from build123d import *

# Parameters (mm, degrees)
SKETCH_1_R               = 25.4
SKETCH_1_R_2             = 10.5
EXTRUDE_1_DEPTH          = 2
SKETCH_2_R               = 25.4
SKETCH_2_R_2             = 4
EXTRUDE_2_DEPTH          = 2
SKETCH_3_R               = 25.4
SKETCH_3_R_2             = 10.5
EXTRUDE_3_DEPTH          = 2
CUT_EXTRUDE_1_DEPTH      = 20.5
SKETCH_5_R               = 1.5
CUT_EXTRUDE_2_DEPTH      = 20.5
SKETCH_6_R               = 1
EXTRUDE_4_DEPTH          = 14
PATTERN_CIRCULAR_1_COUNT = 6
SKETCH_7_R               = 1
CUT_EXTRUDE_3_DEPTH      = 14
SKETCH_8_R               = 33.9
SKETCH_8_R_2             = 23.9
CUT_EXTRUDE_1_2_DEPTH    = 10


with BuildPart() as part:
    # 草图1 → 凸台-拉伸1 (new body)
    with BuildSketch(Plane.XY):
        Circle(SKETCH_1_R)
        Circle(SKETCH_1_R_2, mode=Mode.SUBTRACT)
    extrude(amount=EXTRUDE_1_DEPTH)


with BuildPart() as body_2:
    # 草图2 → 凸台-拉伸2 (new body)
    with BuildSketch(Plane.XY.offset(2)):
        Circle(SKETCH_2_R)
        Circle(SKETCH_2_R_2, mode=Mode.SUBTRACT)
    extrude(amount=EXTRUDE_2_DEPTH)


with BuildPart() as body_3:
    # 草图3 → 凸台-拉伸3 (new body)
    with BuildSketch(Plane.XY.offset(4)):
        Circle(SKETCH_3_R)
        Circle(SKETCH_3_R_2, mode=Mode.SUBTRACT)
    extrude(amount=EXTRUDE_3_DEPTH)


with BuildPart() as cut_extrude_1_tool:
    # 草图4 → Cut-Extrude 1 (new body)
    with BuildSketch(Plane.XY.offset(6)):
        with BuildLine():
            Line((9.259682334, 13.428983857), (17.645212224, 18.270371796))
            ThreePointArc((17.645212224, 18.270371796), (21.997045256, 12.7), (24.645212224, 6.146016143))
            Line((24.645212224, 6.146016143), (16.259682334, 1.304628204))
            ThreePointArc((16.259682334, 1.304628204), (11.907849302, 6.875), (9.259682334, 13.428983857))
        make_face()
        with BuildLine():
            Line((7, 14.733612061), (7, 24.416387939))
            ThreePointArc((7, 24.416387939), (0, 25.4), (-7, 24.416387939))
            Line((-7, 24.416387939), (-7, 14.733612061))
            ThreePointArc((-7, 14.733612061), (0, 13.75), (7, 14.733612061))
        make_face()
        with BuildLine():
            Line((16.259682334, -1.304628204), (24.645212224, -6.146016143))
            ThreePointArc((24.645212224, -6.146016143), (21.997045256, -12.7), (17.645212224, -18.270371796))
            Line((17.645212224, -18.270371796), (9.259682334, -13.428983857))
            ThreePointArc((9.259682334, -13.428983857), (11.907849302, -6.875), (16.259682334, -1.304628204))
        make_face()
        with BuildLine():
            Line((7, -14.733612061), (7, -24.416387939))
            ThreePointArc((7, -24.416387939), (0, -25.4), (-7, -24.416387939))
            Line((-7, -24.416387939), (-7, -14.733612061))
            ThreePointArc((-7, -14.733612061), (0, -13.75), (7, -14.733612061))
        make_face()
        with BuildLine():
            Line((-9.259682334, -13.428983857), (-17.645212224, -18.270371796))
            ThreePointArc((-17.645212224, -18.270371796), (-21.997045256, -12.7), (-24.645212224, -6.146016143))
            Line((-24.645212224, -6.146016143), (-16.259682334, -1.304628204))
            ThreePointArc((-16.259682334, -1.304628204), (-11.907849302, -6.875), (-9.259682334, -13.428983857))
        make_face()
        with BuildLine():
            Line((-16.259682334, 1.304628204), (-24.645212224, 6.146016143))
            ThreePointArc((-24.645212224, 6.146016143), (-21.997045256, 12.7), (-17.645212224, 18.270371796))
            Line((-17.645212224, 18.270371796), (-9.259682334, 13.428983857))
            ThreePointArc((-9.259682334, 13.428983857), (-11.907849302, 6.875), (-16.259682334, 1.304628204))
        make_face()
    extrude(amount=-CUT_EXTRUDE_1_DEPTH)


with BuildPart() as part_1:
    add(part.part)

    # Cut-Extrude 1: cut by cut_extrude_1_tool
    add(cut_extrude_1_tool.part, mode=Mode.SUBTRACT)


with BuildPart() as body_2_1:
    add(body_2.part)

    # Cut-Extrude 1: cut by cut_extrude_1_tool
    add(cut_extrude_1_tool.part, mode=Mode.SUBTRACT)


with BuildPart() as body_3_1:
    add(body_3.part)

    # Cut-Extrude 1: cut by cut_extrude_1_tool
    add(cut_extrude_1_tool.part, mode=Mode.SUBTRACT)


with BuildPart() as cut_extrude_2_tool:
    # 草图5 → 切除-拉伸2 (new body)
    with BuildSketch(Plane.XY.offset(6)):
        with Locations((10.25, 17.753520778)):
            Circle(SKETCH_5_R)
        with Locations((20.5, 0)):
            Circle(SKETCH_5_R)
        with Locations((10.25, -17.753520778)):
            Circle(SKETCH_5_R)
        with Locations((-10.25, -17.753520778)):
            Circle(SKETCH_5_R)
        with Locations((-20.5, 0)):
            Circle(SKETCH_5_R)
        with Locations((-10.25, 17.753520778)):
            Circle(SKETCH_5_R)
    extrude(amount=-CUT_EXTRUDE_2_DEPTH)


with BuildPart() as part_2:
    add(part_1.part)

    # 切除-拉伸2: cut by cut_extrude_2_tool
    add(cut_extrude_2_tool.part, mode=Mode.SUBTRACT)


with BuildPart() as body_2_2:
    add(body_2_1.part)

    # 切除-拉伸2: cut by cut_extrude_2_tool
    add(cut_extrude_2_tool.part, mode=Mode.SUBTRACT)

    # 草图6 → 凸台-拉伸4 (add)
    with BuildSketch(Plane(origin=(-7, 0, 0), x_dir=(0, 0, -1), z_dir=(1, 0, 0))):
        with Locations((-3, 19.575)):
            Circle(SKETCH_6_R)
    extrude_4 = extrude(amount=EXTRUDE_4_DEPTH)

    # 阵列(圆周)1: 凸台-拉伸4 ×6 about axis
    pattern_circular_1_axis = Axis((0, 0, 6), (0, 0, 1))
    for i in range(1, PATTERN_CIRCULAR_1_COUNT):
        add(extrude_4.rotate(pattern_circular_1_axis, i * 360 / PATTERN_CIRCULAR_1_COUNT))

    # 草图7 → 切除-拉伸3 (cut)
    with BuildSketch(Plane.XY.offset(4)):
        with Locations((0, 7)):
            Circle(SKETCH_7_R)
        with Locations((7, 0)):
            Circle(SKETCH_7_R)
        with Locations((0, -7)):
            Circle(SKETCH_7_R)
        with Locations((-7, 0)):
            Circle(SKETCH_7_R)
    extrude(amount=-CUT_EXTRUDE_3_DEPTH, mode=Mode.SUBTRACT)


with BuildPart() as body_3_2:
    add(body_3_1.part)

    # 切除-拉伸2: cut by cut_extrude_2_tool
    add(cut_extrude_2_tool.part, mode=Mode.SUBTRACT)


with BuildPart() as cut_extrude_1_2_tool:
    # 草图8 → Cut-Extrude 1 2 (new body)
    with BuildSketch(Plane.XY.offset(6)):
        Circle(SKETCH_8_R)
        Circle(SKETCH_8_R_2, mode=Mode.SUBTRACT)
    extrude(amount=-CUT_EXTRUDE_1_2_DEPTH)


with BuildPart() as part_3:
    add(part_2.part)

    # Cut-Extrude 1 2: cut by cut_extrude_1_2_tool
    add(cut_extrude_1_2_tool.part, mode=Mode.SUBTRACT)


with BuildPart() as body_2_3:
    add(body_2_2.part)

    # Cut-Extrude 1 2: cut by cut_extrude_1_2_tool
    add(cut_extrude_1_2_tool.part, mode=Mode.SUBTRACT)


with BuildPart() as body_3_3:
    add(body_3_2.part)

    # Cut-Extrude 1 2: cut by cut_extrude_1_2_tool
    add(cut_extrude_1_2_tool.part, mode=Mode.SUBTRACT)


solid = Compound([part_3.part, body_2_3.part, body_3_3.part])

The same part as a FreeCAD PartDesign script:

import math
import FreeCAD as App
import Part
import Sketcher

V = App.Vector
Q = App.Units.Quantity

doc = App.newDocument("Part")
body = doc.addObject("PartDesign::Body", "Body")

# Sketch on XY plane
sketch1 = body.newObject("Sketcher::SketchObject", "Sketch")
sketch1.AttachmentSupport = (doc.getObject("XY_Plane"), [""])
sketch1.MapMode = "FlatFace"
sketch1.addGeometry(Part.Circle(V(0, 0, 0), V(0, 0, 1), 25), False)
sketch1.addGeometry(Part.Circle(V(0, 0, 0), V(0, 0, 1), 10), False)
sketch1.addConstraint(Sketcher.Constraint("Coincident", 0, 3, -1, 1))
sketch1.addConstraint(Sketcher.Constraint("Coincident", 1, 3, -1, 1))
sketch1.addConstraint(Sketcher.Constraint("Diameter", 1, Q("21 mm")))
sketch1.addConstraint(Sketcher.Constraint("Diameter", 0, Q("50.8 mm")))
pad1 = body.newObject("PartDesign::Pad", "Pad")
pad1.Profile = sketch1
pad1.Length = 2
body2 = doc.addObject("PartDesign::Body", "Body001")

# Sketch on XY plane
sketch2 = body2.newObject("Sketcher::SketchObject", "Sketch001")
sketch2.AttachmentSupport = (doc.getObject("XY_Plane001"), [""])
sketch2.MapMode = "FlatFace"
sketch2.AttachmentOffset = App.Placement(V(0, 0, 2), App.Rotation())
sketch2.addGeometry(Part.Circle(V(0, 0, 0), V(0, 0, 1), 25.4), False)
sketch2.addGeometry(Part.Circle(V(0, 0, 0), V(0, 0, 1), 4), False)
sketch2.addConstraint(Sketcher.Constraint("Coincident", 0, 3, -1, 1))
sketch2.addConstraint(Sketcher.Constraint("Coincident", 1, 3, -1, 1))
sketch2.addConstraint(Sketcher.Constraint("Diameter", 1, Q("8 mm")))
sketch2.addConstraint(Sketcher.Constraint("Diameter", 0, Q("50.8 mm")))
pad2 = body2.newObject("PartDesign::Pad", "Pad001")
pad2.Profile = sketch2
pad2.Length = 2
body3 = doc.addObject("PartDesign::Body", "Body002")

# Sketch on XY plane
sketch3 = body3.newObject("Sketcher::SketchObject", "Sketch002")
sketch3.AttachmentSupport = (doc.getObject("XY_Plane002"), [""])
sketch3.MapMode = "FlatFace"
sketch3.AttachmentOffset = App.Placement(V(0, 0, 4), App.Rotation())
sketch3.addGeometry(Part.Circle(V(0, 0, 0), V(0, 0, 1), 25), False)
sketch3.addGeometry(Part.Circle(V(0, 0, 0), V(0, 0, 1), 10), False)
sketch3.addConstraint(Sketcher.Constraint("Coincident", 0, 3, -1, 1))
sketch3.addConstraint(Sketcher.Constraint("Coincident", 1, 3, -1, 1))
sketch3.addConstraint(Sketcher.Constraint("Diameter", 1, Q("21 mm")))
sketch3.addConstraint(Sketcher.Constraint("Diameter", 0, Q("50.8 mm")))
pad3 = body3.newObject("PartDesign::Pad", "Pad002")
pad3.Profile = sketch3
pad3.Length = 2
body4 = doc.addObject("PartDesign::Body", "Body003")
body4.AllowCompound = True

# Sketch on XY plane
sketch4 = body4.newObject("Sketcher::SketchObject", "Sketch003")
sketch4.AttachmentSupport = (doc.getObject("XY_Plane003"), [""])
sketch4.MapMode = "FlatFace"
sketch4.AttachmentOffset = App.Placement(V(0, 0, 6), App.Rotation())
sketch4.addGeometry(Part.LineSegment(V(18, 18, 0), V(9, 13, 0)), False)
sketch4.addGeometry(Part.ArcOfCircle(Part.Circle(V(34, 20, 0), V(0, 0, 1), 25), math.radians(-166), math.radians(-134)), False)
sketch4.addGeometry(Part.LineSegment(V(16, 1, 0), V(25, 6, 0)), False)
sketch4.addGeometry(Part.ArcOfCircle(Part.Circle(V(0, 0, 0), V(0, 0, 1), 25), math.radians(14), math.radians(46)), False)
sketch4.addGeometry(Part.LineSegment(V(7, 15, 0), V(7, 24, 0)), False)
sketch4.addGeometry(Part.ArcOfCircle(Part.Circle(V(0, 0, 0), V(0, 0, 1), 25), math.radians(74), math.radians(106)), False)
sketch4.addGeometry(Part.LineSegment(V(-7, 24, 0), V(-7, 15, 0)), False)
sketch4.addGeometry(Part.ArcOfCircle(Part.Circle(V(0, 39, 0), V(0, 0, 1), 25), math.radians(-106), math.radians(-74)), False)
sketch4.addGeometry(Part.LineSegment(V(25, -6, 0), V(16, -1, 0)), False)
sketch4.addGeometry(Part.ArcOfCircle(Part.Circle(V(34, -20, 0), V(0, 0, 1), 25), math.radians(134), math.radians(166)), False)
sketch4.addGeometry(Part.LineSegment(V(9, -13, 0), V(18, -18, 0)), False)
sketch4.addGeometry(Part.ArcOfCircle(Part.Circle(V(0, 0, 0), V(0, 0, 1), 25), math.radians(-46), math.radians(-14)), False)
sketch4.addGeometry(Part.LineSegment(V(7, -24, 0), V(7, -15, 0)), False)
sketch4.addGeometry(Part.ArcOfCircle(Part.Circle(V(0, -39, 0), V(0, 0, 1), 25), math.radians(74), math.radians(106)), False)
sketch4.addGeometry(Part.LineSegment(V(-7, -15, 0), V(-7, -24, 0)), False)
sketch4.addGeometry(Part.ArcOfCircle(Part.Circle(V(0, 0, 0), V(0, 0, 1), 25), math.radians(-106), math.radians(-74)), False)
sketch4.addGeometry(Part.LineSegment(V(-18, -18, 0), V(-9, -13, 0)), False)
sketch4.addGeometry(Part.ArcOfCircle(Part.Circle(V(-34, -20, 0), V(0, 0, 1), 25), math.radians(14), math.radians(46)), False)
sketch4.addGeometry(Part.LineSegment(V(-16, -1, 0), V(-25, -6, 0)), False)
sketch4.addGeometry(Part.ArcOfCircle(Part.Circle(V(0, 0, 0), V(0, 0, 1), 25), math.radians(-166), math.radians(-134)), False)
sketch4.addGeometry(Part.LineSegment(V(-25, 6, 0), V(-16, 1, 0)), False)
sketch4.addGeometry(Part.ArcOfCircle(Part.Circle(V(-34, 20, 0), V(0, 0, 1), 25), math.radians(-46), math.radians(-14)), False)
sketch4.addGeometry(Part.LineSegment(V(-9, 13, 0), V(-18, 18, 0)), False)
sketch4.addGeometry(Part.ArcOfCircle(Part.Circle(V(0, 0, 0), V(0, 0, 1), 25), math.radians(134), math.radians(166)), False)
sketch4.addConstraint(Sketcher.Constraint("Coincident", 0, 2, 1, 1))
sketch4.addConstraint(Sketcher.Constraint("Coincident", 1, 2, 2, 1))
sketch4.addConstraint(Sketcher.Constraint("Coincident", 2, 2, 3, 1))
sketch4.addConstraint(Sketcher.Constraint("Coincident", 3, 2, 0, 1))
sketch4.addConstraint(Sketcher.Constraint("Coincident", 4, 2, 5, 1))
sketch4.addConstraint(Sketcher.Constraint("Coincident", 5, 2, 6, 1))
sketch4.addConstraint(Sketcher.Constraint("Coincident", 6, 2, 7, 1))
sketch4.addConstraint(Sketcher.Constraint("Coincident", 7, 2, 4, 1))
sketch4.addConstraint(Sketcher.Constraint("Coincident", 8, 2, 9, 1))
sketch4.addConstraint(Sketcher.Constraint("Coincident", 9, 2, 10, 1))
sketch4.addConstraint(Sketcher.Constraint("Coincident", 10, 2, 11, 1))
sketch4.addConstraint(Sketcher.Constraint("Coincident", 11, 2, 8, 1))
sketch4.addConstraint(Sketcher.Constraint("Coincident", 12, 2, 13, 1))
sketch4.addConstraint(Sketcher.Constraint("Coincident", 13, 2, 14, 1))
sketch4.addConstraint(Sketcher.Constraint("Coincident", 14, 2, 15, 1))
sketch4.addConstraint(Sketcher.Constraint("Coincident", 15, 2, 12, 1))
sketch4.addConstraint(Sketcher.Constraint("Coincident", 16, 2, 17, 1))
sketch4.addConstraint(Sketcher.Constraint("Coincident", 17, 2, 18, 1))
sketch4.addConstraint(Sketcher.Constraint("Coincident", 18, 2, 19, 1))
sketch4.addConstraint(Sketcher.Constraint("Coincident", 19, 2, 16, 1))
sketch4.addConstraint(Sketcher.Constraint("Coincident", 20, 2, 21, 1))
sketch4.addConstraint(Sketcher.Constraint("Coincident", 21, 2, 22, 1))
sketch4.addConstraint(Sketcher.Constraint("Coincident", 22, 2, 23, 1))
sketch4.addConstraint(Sketcher.Constraint("Coincident", 23, 2, 20, 1))
sketch4.addConstraint(Sketcher.Constraint("Vertical", 4))
sketch4.addConstraint(Sketcher.Constraint("Vertical", 6))
sketch4.addConstraint(Sketcher.Constraint("Vertical", 12))
sketch4.addConstraint(Sketcher.Constraint("Vertical", 14))
sketch4.addConstraint(Sketcher.Constraint("Coincident", 3, 3, -1, 1))
sketch4.addConstraint(Sketcher.Constraint("Coincident", 5, 3, -1, 1))
sketch4.addConstraint(Sketcher.Constraint("Coincident", 11, 3, -1, 1))
sketch4.addConstraint(Sketcher.Constraint("Coincident", 15, 3, -1, 1))
sketch4.addConstraint(Sketcher.Constraint("Coincident", 19, 3, -1, 1))
sketch4.addConstraint(Sketcher.Constraint("Coincident", 23, 3, -1, 1))
sketch4.addConstraint(Sketcher.Constraint("Equal", 1, 3))
sketch4.addConstraint(Sketcher.Constraint("Equal", 3, 5))
sketch4.addConstraint(Sketcher.Constraint("Equal", 5, 7))
sketch4.addConstraint(Sketcher.Constraint("Equal", 7, 9))
sketch4.addConstraint(Sketcher.Constraint("Equal", 9, 11))
sketch4.addConstraint(Sketcher.Constraint("Equal", 11, 13))
sketch4.addConstraint(Sketcher.Constraint("Equal", 13, 15))
sketch4.addConstraint(Sketcher.Constraint("Equal", 15, 17))
sketch4.addConstraint(Sketcher.Constraint("Equal", 17, 19))
sketch4.addConstraint(Sketcher.Constraint("Equal", 19, 21))
sketch4.addConstraint(Sketcher.Constraint("Equal", 21, 23))
sketch4.addConstraint(Sketcher.Constraint("Symmetric", 7, 3, 13, 3, -1, 1))
sketch4.addConstraint(Sketcher.Constraint("Symmetric", 1, 3, 17, 3, -1, 1))
sketch4.addConstraint(Sketcher.Constraint("Symmetric", 9, 3, 21, 3, -1, 1))
sketch4.addConstraint(Sketcher.Constraint("Symmetric", 9, 3, 17, 3, -2))
sketch4.addConstraint(Sketcher.Constraint("Symmetric", 6, 2, 7, 2, -2))
sketch4.addConstraint(Sketcher.Constraint("Parallel", 0, 2))
sketch4.addConstraint(Sketcher.Constraint("Parallel", 8, 10))
sketch4.addConstraint(Sketcher.Constraint("Parallel", 2, 16))
sketch4.addConstraint(Sketcher.Constraint("Parallel", 16, 18))
sketch4.addConstraint(Sketcher.Constraint("Parallel", 10, 20))
sketch4.addConstraint(Sketcher.Constraint("Parallel", 20, 22))
sketch4.addConstraint(Sketcher.Constraint("Horizontal", 12, 2, 13, 2))
sketch4.addConstraint(Sketcher.Constraint("Horizontal", 9, 2, 16, 2))
sketch4.addConstraint(Sketcher.Constraint("Horizontal", 8, 2, 17, 2))
sketch4.addConstraint(Sketcher.Constraint("Horizontal", 11, 2, 18, 2))
sketch4.addConstraint(Sketcher.Constraint("Horizontal", 1, 2, 20, 2))
sketch4.addConstraint(Sketcher.Constraint("Horizontal", 0, 2, 21, 2))
sketch4.addConstraint(Sketcher.Constraint("Vertical", 1, 2, 8, 2))
sketch4.addConstraint(Sketcher.Constraint("Vertical", 0, 2, 9, 2))
sketch4.addConstraint(Sketcher.Constraint("Vertical", 7, 2, 12, 2))
sketch4.addConstraint(Sketcher.Constraint("Equal", 0, 2))
sketch4.addConstraint(Sketcher.Constraint("Radius", 1, Q("25.4 mm")))
sketch4.addConstraint(Sketcher.Constraint("Angle", 0, Q("-150 deg")))
sketch4.addConstraint(Sketcher.Constraint("DistanceX", -1, 1, 4, 2, Q("7 mm")))
sketch4.addConstraint(Sketcher.Constraint("DistanceX", 0, 2, 1, 2, Q("7 mm")))
sketch4.addConstraint(Sketcher.Constraint("DistanceY", -1, 1, 7, 3, Q("39.15 mm")))
sketch4.addConstraint(Sketcher.Constraint("DistanceY", 9, 3, 1, 3, Q("39.15 mm")))
sketch4.addConstraint(Sketcher.Constraint("DistanceY", 8, 2, -1, 1, Q("1.304628 mm")))
pad4 = body4.newObject("PartDesign::Pad", "Pad003")
pad4.Profile = sketch4
pad4.Length = 20.5
pad4.Reversed = True
doc.recompute()

body5 = doc.addObject("PartDesign::Body", "Body004")
body5.BaseFeature = body4
boolean = body.newObject("PartDesign::Boolean", "Boolean")
boolean.Type = "Cut"
boolean.addObjects([body5])
doc.recompute()

body6 = doc.addObject("PartDesign::Body", "Body005")
body6.BaseFeature = body4
boolean2 = body2.newObject("PartDesign::Boolean", "Boolean001")
boolean2.Type = "Cut"
boolean2.addObjects([body6])
doc.recompute()

boolean3 = body3.newObject("PartDesign::Boolean", "Boolean002")
boolean3.Type = "Cut"
boolean3.addObjects([body4])
body7 = doc.addObject("PartDesign::Body", "Body006")
body7.AllowCompound = True

# Sketch on XY plane
sketch5 = body7.newObject("Sketcher::SketchObject", "Sketch004")
sketch5.AttachmentSupport = (doc.getObject("XY_Plane006"), [""])
sketch5.MapMode = "FlatFace"
sketch5.AttachmentOffset = App.Placement(V(0, 0, 6), App.Rotation())
sketch5.addGeometry(Part.Circle(V(10.2, 17.8, 0), V(0, 0, 1), 1.5), False)
sketch5.addGeometry(Part.Circle(V(20.5, 0, 0), V(0, 0, 1), 1.5), False)
sketch5.addGeometry(Part.Circle(V(10.2, -17.8, 0), V(0, 0, 1), 1.5), False)
sketch5.addGeometry(Part.Circle(V(-10.2, -17.8, 0), V(0, 0, 1), 1.5), False)
sketch5.addGeometry(Part.Circle(V(-20.5, 0, 0), V(0, 0, 1), 1.5), False)
sketch5.addGeometry(Part.Circle(V(-10.2, 17.8, 0), V(0, 0, 1), 1.5), False)
sketch5.addConstraint(Sketcher.Constraint("Equal", 0, 1))
sketch5.addConstraint(Sketcher.Constraint("Equal", 1, 2))
sketch5.addConstraint(Sketcher.Constraint("Equal", 2, 3))
sketch5.addConstraint(Sketcher.Constraint("Equal", 3, 4))
sketch5.addConstraint(Sketcher.Constraint("Equal", 4, 5))
sketch5.addConstraint(Sketcher.Constraint("Symmetric", 0, 3, 3, 3, -1, 1))
sketch5.addConstraint(Sketcher.Constraint("Symmetric", 1, 3, 4, 3, -1, 1))
sketch5.addConstraint(Sketcher.Constraint("Symmetric", 2, 3, 5, 3, -1, 1))
sketch5.addConstraint(Sketcher.Constraint("Symmetric", 2, 3, 3, 3, -2))
sketch5.addConstraint(Sketcher.Constraint("PointOnObject", 1, 3, -1))
sketch5.addConstraint(Sketcher.Constraint("Diameter", 0, Q("3 mm")))
sketch5.addConstraint(Sketcher.Constraint("DistanceX", 4, 3, 1, 3, Q("41 mm")))
sketch5.addConstraint(Sketcher.Constraint("DistanceX", 3, 3, 2, 3, Q("20.5 mm")))
sketch5.addConstraint(Sketcher.Constraint("DistanceY", -1, 1, 0, 3, Q("17.753521 mm")))
pad5 = body7.newObject("PartDesign::Pad", "Pad004")
pad5.Profile = sketch5
pad5.Length = 20.5
pad5.Reversed = True
doc.recompute()

body8 = doc.addObject("PartDesign::Body", "Body007")
body8.BaseFeature = body7
boolean4 = body.newObject("PartDesign::Boolean", "Boolean003")
boolean4.Type = "Cut"
boolean4.addObjects([body8])
doc.recompute()

body9 = doc.addObject("PartDesign::Body", "Body008")
body9.BaseFeature = body7
boolean5 = body2.newObject("PartDesign::Boolean", "Boolean004")
boolean5.Type = "Cut"
boolean5.addObjects([body9])
doc.recompute()

# Sketch on YZ plane
sketch6 = body2.newObject("Sketcher::SketchObject", "Sketch005")
sketch6.AttachmentSupport = (doc.getObject("YZ_Plane001"), [""])
sketch6.MapMode = "FlatFace"
sketch6.AttachmentOffset = App.Placement(V(0, 0, -7), App.Rotation())
sketch6.addGeometry(Part.Circle(V(19.6, 3, 0), V(0, 0, 1), 1), False)
sketch6.addConstraint(Sketcher.Constraint("Diameter", 0, Q("2 mm")))
sketch6.addConstraint(Sketcher.Constraint("DistanceY", -1, 1, 0, 3, Q("3 mm")))
sketch6.addConstraint(Sketcher.Constraint("DistanceX", -1, 1, 0, 3, Q("19.575 mm")))
pad6 = body2.newObject("PartDesign::Pad", "Pad005")
pad6.Profile = sketch6
pad6.Length = 14
doc.recompute()

polarpattern = body2.newObject("PartDesign::PolarPattern", "PolarPattern")
polarpattern.Originals = [pad6]
polarpattern.Axis = (doc.getObject("Z_Axis001"), [""])
polarpattern.Angle = 360
polarpattern.Occurrences = 6
body2.Tip = polarpattern

# Sketch on XY plane
sketch7 = body2.newObject("Sketcher::SketchObject", "Sketch006")
sketch7.AttachmentSupport = (doc.getObject("XY_Plane001"), [""])
sketch7.MapMode = "FlatFace"
sketch7.AttachmentOffset = App.Placement(V(0, 0, 4), App.Rotation())
sketch7.addGeometry(Part.Circle(V(0, 7, 0), V(0, 0, 1), 1), False)
sketch7.addGeometry(Part.Circle(V(7, 0, 0), V(0, 0, 1), 1), False)
sketch7.addGeometry(Part.Circle(V(0, -7, 0), V(0, 0, 1), 1), False)
sketch7.addGeometry(Part.Circle(V(-7, 0, 0), V(0, 0, 1), 1), False)
sketch7.addConstraint(Sketcher.Constraint("Equal", 0, 1))
sketch7.addConstraint(Sketcher.Constraint("Equal", 1, 2))
sketch7.addConstraint(Sketcher.Constraint("Equal", 2, 3))
sketch7.addConstraint(Sketcher.Constraint("Symmetric", 0, 3, 2, 3, -1, 1))
sketch7.addConstraint(Sketcher.Constraint("Symmetric", 1, 3, 3, 3, -1, 1))
sketch7.addConstraint(Sketcher.Constraint("PointOnObject", 0, 3, -2))
sketch7.addConstraint(Sketcher.Constraint("PointOnObject", 1, 3, -1))
sketch7.addConstraint(Sketcher.Constraint("Diameter", 0, Q("2 mm")))
sketch7.addConstraint(Sketcher.Constraint("DistanceY", -1, 1, 0, 3, Q("7 mm")))
sketch7.addConstraint(Sketcher.Constraint("DistanceX", -1, 1, 1, 3, Q("7 mm")))
pocket1 = body2.newObject("PartDesign::Pocket", "Pocket")
pocket1.Profile = sketch7
pocket1.Length = 14
doc.recompute()

boolean6 = body3.newObject("PartDesign::Boolean", "Boolean005")
boolean6.Type = "Cut"
boolean6.addObjects([body7])
body10 = doc.addObject("PartDesign::Body", "Body009")

# Sketch on XY plane
sketch8 = body10.newObject("Sketcher::SketchObject", "Sketch007")
sketch8.AttachmentSupport = (doc.getObject("XY_Plane009"), [""])
sketch8.MapMode = "FlatFace"
sketch8.AttachmentOffset = App.Placement(V(0, 0, 6), App.Rotation())
sketch8.addGeometry(Part.Circle(V(0, 0, 0), V(0, 0, 1), 34), False)
sketch8.addGeometry(Part.Circle(V(0, 0, 0), V(0, 0, 1), 24), False)
sketch8.addConstraint(Sketcher.Constraint("Coincident", 0, 3, -1, 1))
sketch8.addConstraint(Sketcher.Constraint("Coincident", 1, 3, -1, 1))
sketch8.addConstraint(Sketcher.Constraint("Diameter", 0, Q("67.8 mm")))
sketch8.addConstraint(Sketcher.Constraint("Diameter", 1, Q("47.8 mm")))
pad7 = body10.newObject("PartDesign::Pad", "Pad006")
pad7.Profile = sketch8
pad7.Length = 10
pad7.Reversed = True
doc.recompute()

body11 = doc.addObject("PartDesign::Body", "Body010")
body11.BaseFeature = body10
boolean7 = body.newObject("PartDesign::Boolean", "Boolean006")
boolean7.Type = "Cut"
boolean7.addObjects([body11])
doc.recompute()

body12 = doc.addObject("PartDesign::Body", "Body011")
body12.BaseFeature = body10
boolean8 = body2.newObject("PartDesign::Boolean", "Boolean007")
boolean8.Type = "Cut"
boolean8.addObjects([body12])
doc.recompute()

boolean9 = body3.newObject("PartDesign::Boolean", "Boolean008")
boolean9.Type = "Cut"
boolean9.addObjects([body10])

doc.recompute()
